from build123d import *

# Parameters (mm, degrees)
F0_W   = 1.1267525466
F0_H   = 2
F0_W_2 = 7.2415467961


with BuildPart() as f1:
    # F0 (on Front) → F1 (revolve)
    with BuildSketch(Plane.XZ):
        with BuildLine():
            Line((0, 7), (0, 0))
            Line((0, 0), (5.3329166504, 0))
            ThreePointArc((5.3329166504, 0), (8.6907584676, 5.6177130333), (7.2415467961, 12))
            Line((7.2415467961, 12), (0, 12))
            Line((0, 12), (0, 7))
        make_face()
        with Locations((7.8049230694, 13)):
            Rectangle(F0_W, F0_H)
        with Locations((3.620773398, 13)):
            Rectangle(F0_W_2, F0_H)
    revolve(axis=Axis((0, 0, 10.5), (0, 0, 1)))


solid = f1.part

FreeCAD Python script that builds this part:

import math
import FreeCAD as App
import Part
import Sketcher

V = App.Vector
Q = App.Units.Quantity

doc = App.newDocument("Part")
params = doc.addObject("Spreadsheet::Sheet", "Params")
for row, (alias, value) in enumerate([
    ("sketch1_radius", "8.8 mm"),
    ("sketch1_height", "2 mm"),
    ("sketch1_height2", "12 mm"),
    ("revolution_angle", "360 deg"),
], start=1):
    params.set(f"A{row}", alias)
    params.set(f"B{row}", "=" + value)
    params.setAlias(f"B{row}", alias)

body = doc.addObject("PartDesign::Body", "Body")

# Sketch on XZ plane
sketch1 = doc.addObject("Sketcher::SketchObject", "Sketch")
body.addObject(sketch1)
sketch1.AttachmentSupport = (doc.XZ_Plane, [""])
sketch1.MapMode = "FlatFace"
sketch1.addGeometry([
    Part.LineSegment(V(0, 0, 0), V(5.3, 0, 0)),  # 0
    Part.ArcOfCircle(Part.Circle(V(0, 7, 0), V(0, 0, 1), 8.8), math.radians(-53), math.radians(35)),  # 1
    Part.LineSegment(V(7.2, 12, 0), V(8.4, 12, 0)),  # 2
    Part.LineSegment(V(8.4, 12, 0), V(8.4, 14, 0)),  # 3
    Part.LineSegment(V(8.4, 14, 0), V(0, 14, 0)),  # 4
    Part.LineSegment(V(0, 14, 0), V(0, 12, 0)),  # 5
    Part.LineSegment(V(0, 12, 0), V(0, 0, 0)),  # 6
], False)
sketch1.addConstraint([
    Sketcher.Constraint("Coincident", 0, 2, 1, 1),
    Sketcher.Constraint("Coincident", 1, 2, 2, 1),
    Sketcher.Constraint("Coincident", 2, 2, 3, 1),
    Sketcher.Constraint("Coincident", 3, 2, 4, 1),
    Sketcher.Constraint("Coincident", 4, 2, 5, 1),
    Sketcher.Constraint("Coincident", 5, 2, 6, 1),
    Sketcher.Constraint("Coincident", 6, 2, 0, 1),
    Sketcher.Constraint("Horizontal", 0),
    Sketcher.Constraint("Horizontal", 2),
    Sketcher.Constraint("Vertical", 3),
    Sketcher.Constraint("Horizontal", 4),
    Sketcher.Constraint("Vertical", 5),
    Sketcher.Constraint("Vertical", 6),
    Sketcher.Constraint("Coincident", 6, 2, -1, 1),
    Sketcher.Constraint("PointOnObject", 1, 3, -2),
    Sketcher.Constraint("Horizontal", 2, 2, 5, 2),
    Sketcher.Constraint("Radius", 1, Q("8.8 mm")),
    Sketcher.Constraint("DistanceY", 3, 1, 3, 2, Q("2 mm")),
    Sketcher.Constraint("DistanceY", 6, 2, 6, 1, Q("12 mm")),
    Sketcher.Constraint("DistanceY", -1, 1, 1, 3, Q("7 mm")),
    Sketcher.Constraint("DistanceX", 4, 2, 4, 1, Q("8.368299 mm")),
])
sketch1.setExpression("Constraints[16]", "Params.sketch1_radius")
sketch1.setExpression("Constraints[17]", "Params.sketch1_height")
sketch1.setExpression("Constraints[18]", "Params.sketch1_height2")
revolution = doc.addObject("PartDesign::Revolution", "Revolution")
body.addObject(revolution)
revolution.Profile = sketch1
revolution.ReferenceAxis = (sketch1, ["V_Axis"])
revolution.setExpression("Angle", "Params.revolution_angle")

doc.recompute()
